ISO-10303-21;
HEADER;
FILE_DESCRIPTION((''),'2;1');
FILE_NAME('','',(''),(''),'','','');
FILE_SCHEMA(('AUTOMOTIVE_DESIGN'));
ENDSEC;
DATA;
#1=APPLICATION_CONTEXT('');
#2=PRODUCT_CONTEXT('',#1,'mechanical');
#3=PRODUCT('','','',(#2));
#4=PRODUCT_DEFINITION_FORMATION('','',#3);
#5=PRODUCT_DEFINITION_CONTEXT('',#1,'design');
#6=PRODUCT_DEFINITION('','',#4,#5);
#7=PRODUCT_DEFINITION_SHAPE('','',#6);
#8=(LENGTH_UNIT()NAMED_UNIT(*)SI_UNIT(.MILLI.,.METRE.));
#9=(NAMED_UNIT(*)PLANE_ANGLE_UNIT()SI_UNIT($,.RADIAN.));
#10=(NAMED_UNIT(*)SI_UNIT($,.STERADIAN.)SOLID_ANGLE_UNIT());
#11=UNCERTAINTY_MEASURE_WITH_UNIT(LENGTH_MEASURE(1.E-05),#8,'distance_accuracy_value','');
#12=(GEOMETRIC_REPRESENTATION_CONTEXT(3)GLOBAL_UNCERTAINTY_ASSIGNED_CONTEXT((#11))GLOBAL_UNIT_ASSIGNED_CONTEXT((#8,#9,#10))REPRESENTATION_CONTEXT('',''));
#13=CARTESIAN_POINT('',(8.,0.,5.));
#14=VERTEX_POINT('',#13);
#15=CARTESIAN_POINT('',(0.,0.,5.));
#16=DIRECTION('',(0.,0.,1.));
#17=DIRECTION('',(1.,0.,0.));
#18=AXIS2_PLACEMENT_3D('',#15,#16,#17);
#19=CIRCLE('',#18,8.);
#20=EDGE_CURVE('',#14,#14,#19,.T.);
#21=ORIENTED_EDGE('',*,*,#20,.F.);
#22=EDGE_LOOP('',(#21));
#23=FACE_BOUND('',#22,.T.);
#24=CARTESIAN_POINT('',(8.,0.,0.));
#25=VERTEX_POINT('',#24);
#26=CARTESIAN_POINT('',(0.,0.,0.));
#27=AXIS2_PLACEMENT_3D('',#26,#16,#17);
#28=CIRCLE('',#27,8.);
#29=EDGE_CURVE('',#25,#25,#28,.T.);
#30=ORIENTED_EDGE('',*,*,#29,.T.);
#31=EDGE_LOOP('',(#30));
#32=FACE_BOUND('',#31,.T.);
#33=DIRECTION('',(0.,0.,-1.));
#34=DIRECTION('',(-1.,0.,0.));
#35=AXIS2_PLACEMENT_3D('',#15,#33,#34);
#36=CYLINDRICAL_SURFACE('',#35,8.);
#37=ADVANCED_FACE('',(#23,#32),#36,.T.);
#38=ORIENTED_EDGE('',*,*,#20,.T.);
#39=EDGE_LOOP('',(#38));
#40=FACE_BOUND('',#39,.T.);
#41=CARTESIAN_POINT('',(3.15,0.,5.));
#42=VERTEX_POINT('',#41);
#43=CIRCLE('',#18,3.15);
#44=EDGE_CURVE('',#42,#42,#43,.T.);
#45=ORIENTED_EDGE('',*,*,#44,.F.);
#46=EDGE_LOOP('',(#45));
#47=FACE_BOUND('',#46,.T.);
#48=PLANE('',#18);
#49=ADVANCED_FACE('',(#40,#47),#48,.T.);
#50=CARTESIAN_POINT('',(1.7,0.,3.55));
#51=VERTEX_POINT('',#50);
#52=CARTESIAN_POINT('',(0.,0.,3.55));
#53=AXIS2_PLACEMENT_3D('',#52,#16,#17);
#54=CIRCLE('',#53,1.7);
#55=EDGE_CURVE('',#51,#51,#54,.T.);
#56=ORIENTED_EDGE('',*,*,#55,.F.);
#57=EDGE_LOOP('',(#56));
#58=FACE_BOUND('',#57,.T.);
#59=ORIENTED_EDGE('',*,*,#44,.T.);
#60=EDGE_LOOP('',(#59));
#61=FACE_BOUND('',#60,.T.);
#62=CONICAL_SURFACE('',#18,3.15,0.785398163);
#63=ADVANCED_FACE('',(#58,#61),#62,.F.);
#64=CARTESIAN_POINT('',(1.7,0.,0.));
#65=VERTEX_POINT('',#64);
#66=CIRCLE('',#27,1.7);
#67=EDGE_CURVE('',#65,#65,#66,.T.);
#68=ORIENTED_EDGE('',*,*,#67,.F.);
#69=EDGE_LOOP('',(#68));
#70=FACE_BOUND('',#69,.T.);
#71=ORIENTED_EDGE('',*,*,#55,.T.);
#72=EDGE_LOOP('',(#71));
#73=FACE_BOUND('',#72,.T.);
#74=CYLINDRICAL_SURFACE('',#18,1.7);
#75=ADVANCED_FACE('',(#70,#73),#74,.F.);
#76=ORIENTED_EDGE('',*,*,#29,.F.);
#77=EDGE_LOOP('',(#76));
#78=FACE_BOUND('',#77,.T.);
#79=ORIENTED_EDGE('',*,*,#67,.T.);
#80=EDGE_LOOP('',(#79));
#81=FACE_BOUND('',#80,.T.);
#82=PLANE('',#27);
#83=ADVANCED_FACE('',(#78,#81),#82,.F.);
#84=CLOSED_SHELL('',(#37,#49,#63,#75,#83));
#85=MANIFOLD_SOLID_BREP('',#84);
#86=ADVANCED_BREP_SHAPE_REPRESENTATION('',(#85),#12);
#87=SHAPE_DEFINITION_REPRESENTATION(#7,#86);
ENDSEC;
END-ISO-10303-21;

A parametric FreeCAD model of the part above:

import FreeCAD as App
import Part
import Sketcher
from FreeCAD import Vector

doc = App.newDocument("Part")
params = doc.addObject("Spreadsheet::Sheet", "Params")
for row, (alias, value) in enumerate([
    ("sketch1_diameter", "16 mm"),
    ("pad1_length", "5 mm"),
    ("sketch2_diameter", "3.4 mm"),
    ("hole_diameter", "3.4 mm"),
    ("hole_csink_diameter", "6.3 mm"),
], start=1):
    params.set(f"A{row}", alias)
    params.set(f"B{row}", "=" + value)
    params.setAlias(f"B{row}", alias)

body = doc.addObject("PartDesign::Body", "Body")

sketch1 = doc.addObject("Sketcher::SketchObject", "Sketch")
body.addObject(sketch1)
sketch1.AttachmentSupport = (doc.XY_Plane, [""])
sketch1.MapMode = "FlatFace"
sketch1.addGeometry(Part.Circle(Vector(0, 0, 0), Vector(0, 0, 1), 8), False)
sketch1.addConstraint(Sketcher.Constraint("Coincident", 0, 3, -1, 1))
sketch1.addConstraint(Sketcher.Constraint("Diameter", 0, 16.0))
sketch1.setExpression("Constraints[1]", "Params.sketch1_diameter")
pad1 = doc.addObject("PartDesign::Pad", "Pad")
body.addObject(pad1)
pad1.Profile = sketch1
pad1.setExpression("Length", "Params.pad1_length")

sketch2 = doc.addObject("Sketcher::SketchObject", "Sketch001")
body.addObject(sketch2)
sketch2.AttachmentSupport = (doc.XY_Plane, [""])
sketch2.MapMode = "FlatFace"
sketch2.AttachmentOffset = App.Placement(Vector(0, 0, 5), App.Rotation())
sketch2.addGeometry(Part.Circle(Vector(0, 0, 0), Vector(0, 0, 1), 1.7), False)
sketch2.addConstraint(Sketcher.Constraint("Coincident", 0, 3, -1, 1))
sketch2.addConstraint(Sketcher.Constraint("Diameter", 0, 3.4))
sketch2.setExpression("Constraints[1]", "Params.sketch2_diameter")
doc.recompute()
hole = doc.addObject("PartDesign::Hole", "Hole")
body.addObject(hole)
hole.Profile = sketch2
hole.ThreadType = "None"
hole.setExpression("Diameter", "Params.hole_diameter")
hole.DepthType = "ThroughAll"
hole.HoleCutType = "Countersink"
hole.setExpression("HoleCutDiameter", "Params.hole_csink_diameter")
hole.HoleCutCountersinkAngle = 90

doc.recompute()
